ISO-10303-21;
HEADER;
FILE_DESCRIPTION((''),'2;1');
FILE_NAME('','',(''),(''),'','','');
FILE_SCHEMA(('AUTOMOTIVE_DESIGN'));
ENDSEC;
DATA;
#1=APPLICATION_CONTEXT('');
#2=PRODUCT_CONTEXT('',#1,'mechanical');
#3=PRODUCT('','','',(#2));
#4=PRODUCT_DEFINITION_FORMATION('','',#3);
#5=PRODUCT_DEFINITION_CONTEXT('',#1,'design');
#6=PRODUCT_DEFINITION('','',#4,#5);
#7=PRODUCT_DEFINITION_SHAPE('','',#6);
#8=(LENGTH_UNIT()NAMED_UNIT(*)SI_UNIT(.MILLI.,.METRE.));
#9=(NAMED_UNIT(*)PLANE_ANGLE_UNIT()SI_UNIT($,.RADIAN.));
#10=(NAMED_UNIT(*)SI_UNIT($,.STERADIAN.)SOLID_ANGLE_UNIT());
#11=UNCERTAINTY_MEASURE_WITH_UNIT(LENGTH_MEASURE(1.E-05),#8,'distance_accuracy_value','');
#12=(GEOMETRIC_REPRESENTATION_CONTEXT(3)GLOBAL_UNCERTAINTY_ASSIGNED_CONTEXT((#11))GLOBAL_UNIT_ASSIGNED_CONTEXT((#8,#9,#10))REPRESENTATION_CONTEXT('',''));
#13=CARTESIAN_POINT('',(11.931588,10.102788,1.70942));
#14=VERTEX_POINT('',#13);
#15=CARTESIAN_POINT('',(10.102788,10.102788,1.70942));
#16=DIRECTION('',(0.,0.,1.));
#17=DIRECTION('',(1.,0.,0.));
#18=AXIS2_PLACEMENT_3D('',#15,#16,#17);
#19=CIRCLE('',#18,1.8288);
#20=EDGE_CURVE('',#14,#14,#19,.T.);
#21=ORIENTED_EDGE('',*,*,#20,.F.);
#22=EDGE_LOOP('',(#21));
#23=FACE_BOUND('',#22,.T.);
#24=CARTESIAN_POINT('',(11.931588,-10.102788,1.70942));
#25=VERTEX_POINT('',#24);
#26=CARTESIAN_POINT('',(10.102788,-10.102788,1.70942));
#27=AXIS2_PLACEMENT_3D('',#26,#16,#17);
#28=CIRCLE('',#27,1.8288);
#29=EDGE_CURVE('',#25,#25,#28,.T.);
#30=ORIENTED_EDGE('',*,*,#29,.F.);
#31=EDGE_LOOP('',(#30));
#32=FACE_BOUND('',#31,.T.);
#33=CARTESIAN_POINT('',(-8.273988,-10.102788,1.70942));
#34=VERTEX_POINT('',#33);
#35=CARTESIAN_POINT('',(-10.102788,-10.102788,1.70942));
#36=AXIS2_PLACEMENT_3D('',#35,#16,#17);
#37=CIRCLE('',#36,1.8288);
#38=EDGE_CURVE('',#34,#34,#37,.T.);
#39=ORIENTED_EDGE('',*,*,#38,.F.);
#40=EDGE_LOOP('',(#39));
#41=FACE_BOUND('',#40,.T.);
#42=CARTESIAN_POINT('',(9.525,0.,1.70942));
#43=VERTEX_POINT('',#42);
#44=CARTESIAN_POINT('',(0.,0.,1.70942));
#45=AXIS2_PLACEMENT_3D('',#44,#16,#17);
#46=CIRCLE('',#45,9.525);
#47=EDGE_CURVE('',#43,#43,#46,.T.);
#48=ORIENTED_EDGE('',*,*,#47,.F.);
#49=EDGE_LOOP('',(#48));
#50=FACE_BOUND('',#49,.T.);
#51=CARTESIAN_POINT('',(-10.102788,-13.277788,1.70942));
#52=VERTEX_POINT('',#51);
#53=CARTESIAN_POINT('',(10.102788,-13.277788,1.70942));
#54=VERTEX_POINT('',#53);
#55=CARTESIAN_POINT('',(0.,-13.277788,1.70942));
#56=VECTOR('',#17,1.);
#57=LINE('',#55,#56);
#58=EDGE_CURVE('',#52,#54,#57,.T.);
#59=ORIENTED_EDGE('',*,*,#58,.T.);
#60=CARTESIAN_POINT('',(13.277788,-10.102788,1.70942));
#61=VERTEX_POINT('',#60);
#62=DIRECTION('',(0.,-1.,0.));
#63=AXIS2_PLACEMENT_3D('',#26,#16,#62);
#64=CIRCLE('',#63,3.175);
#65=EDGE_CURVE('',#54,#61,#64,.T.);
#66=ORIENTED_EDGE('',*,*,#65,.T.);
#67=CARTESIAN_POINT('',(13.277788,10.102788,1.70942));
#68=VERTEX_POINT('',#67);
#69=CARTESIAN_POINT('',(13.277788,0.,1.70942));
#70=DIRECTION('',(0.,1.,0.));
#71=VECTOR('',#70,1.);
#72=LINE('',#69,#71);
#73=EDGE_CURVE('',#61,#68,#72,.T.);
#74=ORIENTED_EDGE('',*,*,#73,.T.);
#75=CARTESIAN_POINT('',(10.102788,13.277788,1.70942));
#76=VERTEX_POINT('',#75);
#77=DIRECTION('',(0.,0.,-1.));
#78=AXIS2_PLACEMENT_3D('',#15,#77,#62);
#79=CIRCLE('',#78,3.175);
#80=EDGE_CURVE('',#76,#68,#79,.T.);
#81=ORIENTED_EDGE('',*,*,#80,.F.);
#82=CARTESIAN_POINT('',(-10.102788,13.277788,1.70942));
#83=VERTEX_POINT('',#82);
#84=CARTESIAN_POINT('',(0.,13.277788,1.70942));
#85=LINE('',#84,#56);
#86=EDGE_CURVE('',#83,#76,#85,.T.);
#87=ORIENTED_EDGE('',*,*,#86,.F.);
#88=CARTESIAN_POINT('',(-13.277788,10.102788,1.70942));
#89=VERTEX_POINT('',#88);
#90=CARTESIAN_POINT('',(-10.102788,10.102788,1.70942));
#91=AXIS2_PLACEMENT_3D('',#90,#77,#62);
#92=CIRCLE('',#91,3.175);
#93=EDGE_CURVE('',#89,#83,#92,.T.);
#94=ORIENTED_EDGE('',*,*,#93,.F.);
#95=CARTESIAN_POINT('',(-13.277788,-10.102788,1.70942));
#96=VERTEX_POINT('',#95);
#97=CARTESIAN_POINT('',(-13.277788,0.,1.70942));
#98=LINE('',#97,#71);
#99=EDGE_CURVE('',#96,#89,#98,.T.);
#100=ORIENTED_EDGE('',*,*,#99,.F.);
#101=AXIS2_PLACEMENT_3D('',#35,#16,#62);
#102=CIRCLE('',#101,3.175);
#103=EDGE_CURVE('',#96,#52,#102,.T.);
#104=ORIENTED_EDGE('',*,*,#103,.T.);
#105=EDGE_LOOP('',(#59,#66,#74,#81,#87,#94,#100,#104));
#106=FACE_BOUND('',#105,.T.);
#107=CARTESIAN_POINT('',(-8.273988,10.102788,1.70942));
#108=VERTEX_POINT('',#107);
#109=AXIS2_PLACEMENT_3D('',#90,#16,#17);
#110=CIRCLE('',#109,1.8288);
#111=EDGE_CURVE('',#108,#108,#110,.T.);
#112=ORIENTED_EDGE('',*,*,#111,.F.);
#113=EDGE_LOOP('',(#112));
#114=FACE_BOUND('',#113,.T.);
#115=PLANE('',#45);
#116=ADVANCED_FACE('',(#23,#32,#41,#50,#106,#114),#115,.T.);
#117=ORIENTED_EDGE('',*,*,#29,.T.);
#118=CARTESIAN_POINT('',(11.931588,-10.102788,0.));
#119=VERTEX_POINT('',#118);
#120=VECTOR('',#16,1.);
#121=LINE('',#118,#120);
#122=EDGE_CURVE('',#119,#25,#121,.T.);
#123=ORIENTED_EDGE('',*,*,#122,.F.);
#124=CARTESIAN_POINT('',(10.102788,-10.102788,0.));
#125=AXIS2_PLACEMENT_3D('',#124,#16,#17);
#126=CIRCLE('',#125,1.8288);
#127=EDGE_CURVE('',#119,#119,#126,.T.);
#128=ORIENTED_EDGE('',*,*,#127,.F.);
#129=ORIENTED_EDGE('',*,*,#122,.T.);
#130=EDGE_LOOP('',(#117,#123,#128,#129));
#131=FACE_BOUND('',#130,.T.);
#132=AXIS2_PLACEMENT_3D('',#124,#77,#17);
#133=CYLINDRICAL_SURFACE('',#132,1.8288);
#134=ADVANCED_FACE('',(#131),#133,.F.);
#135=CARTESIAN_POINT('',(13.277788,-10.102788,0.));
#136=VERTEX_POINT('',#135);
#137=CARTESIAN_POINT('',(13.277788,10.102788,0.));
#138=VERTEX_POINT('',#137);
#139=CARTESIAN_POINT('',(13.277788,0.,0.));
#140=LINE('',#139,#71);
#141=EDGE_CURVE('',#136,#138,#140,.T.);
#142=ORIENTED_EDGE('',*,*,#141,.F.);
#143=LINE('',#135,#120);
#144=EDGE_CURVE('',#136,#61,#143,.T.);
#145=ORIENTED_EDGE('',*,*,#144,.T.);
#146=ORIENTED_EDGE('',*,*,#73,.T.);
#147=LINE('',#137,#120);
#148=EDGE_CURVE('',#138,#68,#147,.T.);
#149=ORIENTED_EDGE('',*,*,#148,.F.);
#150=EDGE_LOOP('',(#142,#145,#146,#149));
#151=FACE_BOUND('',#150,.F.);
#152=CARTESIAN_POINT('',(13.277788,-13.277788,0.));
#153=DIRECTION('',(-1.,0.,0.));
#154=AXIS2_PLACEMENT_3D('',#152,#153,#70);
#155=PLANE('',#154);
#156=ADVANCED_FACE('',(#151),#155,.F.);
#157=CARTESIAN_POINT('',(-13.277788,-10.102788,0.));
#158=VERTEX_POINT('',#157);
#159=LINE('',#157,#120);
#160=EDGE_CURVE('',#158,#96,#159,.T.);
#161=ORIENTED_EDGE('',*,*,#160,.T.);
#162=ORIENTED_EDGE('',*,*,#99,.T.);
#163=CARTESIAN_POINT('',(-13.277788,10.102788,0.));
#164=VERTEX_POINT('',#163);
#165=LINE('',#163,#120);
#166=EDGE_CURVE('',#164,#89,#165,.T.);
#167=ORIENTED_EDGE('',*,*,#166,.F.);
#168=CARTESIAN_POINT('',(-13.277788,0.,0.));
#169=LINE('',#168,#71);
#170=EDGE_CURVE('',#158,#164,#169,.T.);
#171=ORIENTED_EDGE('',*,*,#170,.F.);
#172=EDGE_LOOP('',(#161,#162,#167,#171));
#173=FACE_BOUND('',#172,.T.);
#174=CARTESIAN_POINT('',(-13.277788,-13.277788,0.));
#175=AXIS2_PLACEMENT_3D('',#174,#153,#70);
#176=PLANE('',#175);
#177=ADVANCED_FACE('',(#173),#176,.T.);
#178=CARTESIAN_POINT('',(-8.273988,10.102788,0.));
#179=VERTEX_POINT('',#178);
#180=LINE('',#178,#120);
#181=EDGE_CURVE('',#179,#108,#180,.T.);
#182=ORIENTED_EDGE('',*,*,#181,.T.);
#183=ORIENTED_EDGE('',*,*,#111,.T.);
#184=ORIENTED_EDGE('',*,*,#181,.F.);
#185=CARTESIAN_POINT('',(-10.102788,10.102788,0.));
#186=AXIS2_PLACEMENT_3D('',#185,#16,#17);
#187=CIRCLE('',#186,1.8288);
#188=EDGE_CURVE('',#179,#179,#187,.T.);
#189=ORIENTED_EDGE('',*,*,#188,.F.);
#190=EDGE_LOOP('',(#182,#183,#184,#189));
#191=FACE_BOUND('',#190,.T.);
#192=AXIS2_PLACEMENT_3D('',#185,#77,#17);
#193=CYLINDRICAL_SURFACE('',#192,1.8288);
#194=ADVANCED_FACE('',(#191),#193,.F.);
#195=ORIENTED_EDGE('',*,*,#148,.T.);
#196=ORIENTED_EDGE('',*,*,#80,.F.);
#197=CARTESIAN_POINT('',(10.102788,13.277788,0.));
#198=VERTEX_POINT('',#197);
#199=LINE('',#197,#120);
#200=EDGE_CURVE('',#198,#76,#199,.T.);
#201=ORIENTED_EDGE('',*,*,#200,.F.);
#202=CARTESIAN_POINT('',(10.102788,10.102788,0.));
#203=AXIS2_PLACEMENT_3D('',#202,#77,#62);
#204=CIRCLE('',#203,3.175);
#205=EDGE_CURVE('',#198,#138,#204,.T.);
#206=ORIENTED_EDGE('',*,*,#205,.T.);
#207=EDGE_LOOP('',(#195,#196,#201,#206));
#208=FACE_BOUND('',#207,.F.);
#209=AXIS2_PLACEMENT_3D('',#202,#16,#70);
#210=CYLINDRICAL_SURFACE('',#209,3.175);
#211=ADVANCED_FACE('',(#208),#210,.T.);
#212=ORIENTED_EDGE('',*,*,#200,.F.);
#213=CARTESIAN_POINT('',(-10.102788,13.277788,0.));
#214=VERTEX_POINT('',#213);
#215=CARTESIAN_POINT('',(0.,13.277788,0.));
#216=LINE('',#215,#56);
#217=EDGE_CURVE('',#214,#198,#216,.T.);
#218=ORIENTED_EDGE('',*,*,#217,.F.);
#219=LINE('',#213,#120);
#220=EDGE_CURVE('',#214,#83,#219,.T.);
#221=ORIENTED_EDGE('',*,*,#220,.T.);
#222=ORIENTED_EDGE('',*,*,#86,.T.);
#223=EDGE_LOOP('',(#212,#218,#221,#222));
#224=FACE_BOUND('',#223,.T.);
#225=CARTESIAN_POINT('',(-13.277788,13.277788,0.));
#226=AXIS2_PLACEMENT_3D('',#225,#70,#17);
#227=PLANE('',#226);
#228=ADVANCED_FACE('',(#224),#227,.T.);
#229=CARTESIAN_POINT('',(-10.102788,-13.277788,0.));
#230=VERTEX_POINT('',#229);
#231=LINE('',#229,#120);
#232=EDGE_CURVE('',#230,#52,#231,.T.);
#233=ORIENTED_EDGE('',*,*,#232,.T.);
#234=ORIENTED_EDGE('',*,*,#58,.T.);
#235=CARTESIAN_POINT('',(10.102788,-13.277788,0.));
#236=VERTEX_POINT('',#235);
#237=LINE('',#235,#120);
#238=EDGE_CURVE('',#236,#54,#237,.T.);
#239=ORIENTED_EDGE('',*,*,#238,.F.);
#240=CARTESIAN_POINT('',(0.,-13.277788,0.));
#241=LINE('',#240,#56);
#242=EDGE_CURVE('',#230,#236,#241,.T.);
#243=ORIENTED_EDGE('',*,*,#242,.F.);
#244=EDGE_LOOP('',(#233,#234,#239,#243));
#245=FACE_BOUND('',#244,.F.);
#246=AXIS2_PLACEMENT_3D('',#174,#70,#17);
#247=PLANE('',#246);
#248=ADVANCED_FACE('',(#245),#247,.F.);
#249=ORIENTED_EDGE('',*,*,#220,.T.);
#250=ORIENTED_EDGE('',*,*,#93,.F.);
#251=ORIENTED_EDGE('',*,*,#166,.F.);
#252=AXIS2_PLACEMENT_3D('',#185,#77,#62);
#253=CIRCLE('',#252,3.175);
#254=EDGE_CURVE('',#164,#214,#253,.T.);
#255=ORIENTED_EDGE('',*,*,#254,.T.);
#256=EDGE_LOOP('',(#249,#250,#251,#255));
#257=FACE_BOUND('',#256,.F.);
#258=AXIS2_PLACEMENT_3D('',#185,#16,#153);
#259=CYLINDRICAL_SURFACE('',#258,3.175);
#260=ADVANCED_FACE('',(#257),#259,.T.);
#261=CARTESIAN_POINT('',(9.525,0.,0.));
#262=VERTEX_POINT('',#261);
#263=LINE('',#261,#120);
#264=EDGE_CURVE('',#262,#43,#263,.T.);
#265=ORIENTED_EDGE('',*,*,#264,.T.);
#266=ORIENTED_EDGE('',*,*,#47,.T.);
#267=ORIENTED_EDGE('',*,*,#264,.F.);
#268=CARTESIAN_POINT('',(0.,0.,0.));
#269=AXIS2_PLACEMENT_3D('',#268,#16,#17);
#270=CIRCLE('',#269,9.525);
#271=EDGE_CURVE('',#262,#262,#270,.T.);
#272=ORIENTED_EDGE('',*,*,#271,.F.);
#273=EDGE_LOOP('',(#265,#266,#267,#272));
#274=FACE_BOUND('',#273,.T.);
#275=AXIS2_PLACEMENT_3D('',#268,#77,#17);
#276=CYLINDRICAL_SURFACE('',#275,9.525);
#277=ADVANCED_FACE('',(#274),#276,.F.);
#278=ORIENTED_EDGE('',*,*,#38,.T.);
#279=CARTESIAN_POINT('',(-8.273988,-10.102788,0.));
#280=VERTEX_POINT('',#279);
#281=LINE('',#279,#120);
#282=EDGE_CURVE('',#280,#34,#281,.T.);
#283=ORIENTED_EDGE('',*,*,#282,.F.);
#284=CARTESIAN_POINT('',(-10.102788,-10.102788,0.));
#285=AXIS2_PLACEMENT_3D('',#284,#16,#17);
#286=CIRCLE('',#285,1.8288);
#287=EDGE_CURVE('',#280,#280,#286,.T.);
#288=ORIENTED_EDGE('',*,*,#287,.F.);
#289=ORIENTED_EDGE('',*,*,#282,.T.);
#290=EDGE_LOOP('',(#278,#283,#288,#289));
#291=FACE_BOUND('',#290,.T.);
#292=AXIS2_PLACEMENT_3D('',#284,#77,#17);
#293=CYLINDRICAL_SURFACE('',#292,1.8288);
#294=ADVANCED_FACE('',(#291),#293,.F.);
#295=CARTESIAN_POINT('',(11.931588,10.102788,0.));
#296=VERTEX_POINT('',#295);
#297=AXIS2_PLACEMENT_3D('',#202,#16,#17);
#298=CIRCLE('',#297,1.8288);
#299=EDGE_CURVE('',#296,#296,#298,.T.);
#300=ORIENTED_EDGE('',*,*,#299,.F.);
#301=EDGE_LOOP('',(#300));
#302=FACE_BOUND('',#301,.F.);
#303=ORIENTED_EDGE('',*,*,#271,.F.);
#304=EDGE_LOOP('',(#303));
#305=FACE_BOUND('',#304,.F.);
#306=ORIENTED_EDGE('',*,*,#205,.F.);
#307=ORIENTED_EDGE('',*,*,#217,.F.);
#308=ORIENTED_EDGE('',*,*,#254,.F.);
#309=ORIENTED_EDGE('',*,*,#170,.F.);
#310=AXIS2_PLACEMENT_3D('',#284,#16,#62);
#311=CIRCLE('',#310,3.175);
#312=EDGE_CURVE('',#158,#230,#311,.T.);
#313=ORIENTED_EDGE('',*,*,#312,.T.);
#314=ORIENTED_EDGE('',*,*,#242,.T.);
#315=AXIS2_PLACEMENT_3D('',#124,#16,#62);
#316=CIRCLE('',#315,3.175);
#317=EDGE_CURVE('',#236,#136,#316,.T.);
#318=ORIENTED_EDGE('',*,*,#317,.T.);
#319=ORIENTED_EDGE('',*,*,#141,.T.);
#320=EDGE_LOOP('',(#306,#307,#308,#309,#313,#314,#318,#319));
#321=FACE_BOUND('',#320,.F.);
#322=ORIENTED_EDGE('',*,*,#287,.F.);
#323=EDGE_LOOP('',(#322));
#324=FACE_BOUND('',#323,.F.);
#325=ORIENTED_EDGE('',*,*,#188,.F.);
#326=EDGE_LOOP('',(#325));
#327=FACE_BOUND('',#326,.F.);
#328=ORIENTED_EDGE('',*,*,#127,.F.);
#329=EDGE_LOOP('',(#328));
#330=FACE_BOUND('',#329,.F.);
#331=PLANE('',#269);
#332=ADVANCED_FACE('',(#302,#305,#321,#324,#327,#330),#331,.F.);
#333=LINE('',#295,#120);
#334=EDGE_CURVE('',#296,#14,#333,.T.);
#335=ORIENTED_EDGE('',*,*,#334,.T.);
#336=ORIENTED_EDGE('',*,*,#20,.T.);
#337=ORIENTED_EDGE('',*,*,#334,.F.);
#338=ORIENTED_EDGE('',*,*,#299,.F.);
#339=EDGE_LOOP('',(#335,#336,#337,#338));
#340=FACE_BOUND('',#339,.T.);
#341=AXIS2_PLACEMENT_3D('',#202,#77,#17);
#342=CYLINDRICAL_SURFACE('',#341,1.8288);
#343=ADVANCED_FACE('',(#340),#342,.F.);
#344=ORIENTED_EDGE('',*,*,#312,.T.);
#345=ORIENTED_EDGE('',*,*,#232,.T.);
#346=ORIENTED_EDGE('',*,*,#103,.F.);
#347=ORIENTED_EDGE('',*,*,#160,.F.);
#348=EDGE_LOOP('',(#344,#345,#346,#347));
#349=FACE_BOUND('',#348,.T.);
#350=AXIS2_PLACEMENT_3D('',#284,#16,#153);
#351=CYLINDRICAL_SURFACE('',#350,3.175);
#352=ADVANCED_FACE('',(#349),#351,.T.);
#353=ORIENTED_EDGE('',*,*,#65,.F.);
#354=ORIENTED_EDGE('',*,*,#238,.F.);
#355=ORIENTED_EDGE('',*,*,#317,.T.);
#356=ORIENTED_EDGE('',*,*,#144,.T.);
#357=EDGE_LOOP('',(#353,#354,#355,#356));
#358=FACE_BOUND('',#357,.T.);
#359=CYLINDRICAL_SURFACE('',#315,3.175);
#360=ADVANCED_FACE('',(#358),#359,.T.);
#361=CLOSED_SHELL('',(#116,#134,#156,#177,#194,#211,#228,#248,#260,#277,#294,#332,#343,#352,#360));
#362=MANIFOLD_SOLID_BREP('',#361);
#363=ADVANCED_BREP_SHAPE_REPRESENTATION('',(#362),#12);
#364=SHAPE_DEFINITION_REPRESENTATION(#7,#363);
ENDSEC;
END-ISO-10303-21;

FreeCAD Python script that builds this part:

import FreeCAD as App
import Part
import Sketcher
from FreeCAD import Vector
Q = App.Units.Quantity


def edges_at(feature, points):
    """Names of the edges that pass closest to the given points."""
    edges = feature.Shape.Edges
    near = lambda p: min(range(len(edges)), key=lambda i: edges[i].distToShape(Part.Vertex(*p))[0])
    return sorted({f"Edge{near(p) + 1}" for p in points})


def add_polygon(sketch, points):
    """Adds a closed chain of lines whose ends are joined by coincident constraints."""
    first, n = sketch.GeometryCount, len(points)
    for a, b in zip(points, points[1:] + points[:1]):
        sketch.addGeometry(Part.LineSegment(App.Vector(*a, 0), App.Vector(*b, 0)), False)
    for i in range(n):
        sketch.addConstraint(Sketcher.Constraint("Coincident", first + i, 2, first + (i + 1) % n, 1))

doc = App.newDocument("Part")
body = doc.addObject("PartDesign::Body", "Body")

sketch1 = body.newObject("Sketcher::SketchObject", "Sketch")
sketch1.AttachmentSupport = (doc.getObject("XY_Plane"), [""])
sketch1.MapMode = "FlatFace"
add_polygon(sketch1, [(-13.3, 13.3), (-13.3, -13.3), (13.3, -13.3), (13.3, 13.3)])
sketch1.addGeometry(Part.Circle(Vector(-10.1, -10.1, 0), Vector(0, 0, 1), 1.8), False)
sketch1.addGeometry(Part.Circle(Vector(10.1, -10.1, 0), Vector(0, 0, 1), 1.8), False)
sketch1.addGeometry(Part.Circle(Vector(-10.1, 10.1, 0), Vector(0, 0, 1), 1.8), False)
sketch1.addGeometry(Part.Circle(Vector(0, 0, 0), Vector(0, 0, 1), 9.5), False)
sketch1.addGeometry(Part.Circle(Vector(10.1, 10.1, 0), Vector(0, 0, 1), 1.8), False)
sketch1.addConstraint([
    Sketcher.Constraint("Vertical", 0),
    Sketcher.Constraint("Horizontal", 1),
    Sketcher.Constraint("Vertical", 2),
    Sketcher.Constraint("Horizontal", 3),
    Sketcher.Constraint("Coincident", 7, 3, -1, 1),
    Sketcher.Constraint("Equal", 4, 5),
    Sketcher.Constraint("Equal", 5, 6),
    Sketcher.Constraint("Equal", 6, 8),
    Sketcher.Constraint("Symmetric", 5, 3, 6, 3, -1, 1),
    Sketcher.Constraint("Symmetric", 4, 3, 8, 3, -1, 1),
    Sketcher.Constraint("Symmetric", 0, 2, 2, 2, -1, 1),
    Sketcher.Constraint("Symmetric", 4, 3, 5, 3, -2),
    Sketcher.Constraint("Equal", 3, 0),
    Sketcher.Constraint("Diameter", 7, Q("0.75 in")),
    Sketcher.Constraint("Diameter", 4, Q("0.144 in")),
    Sketcher.Constraint("DistanceX", 0, 2, 4, 3, Q("0.125 in")),
    Sketcher.Constraint("DistanceY", 0, 2, 4, 3, Q("0.125 in")),
    Sketcher.Constraint("DistanceX", 1, 1, 1, 2, 26.555576),
])
pad1 = body.newObject("PartDesign::Pad", "Pad")
pad1.Profile = sketch1
pad1.Length = Q("0.0673 in")
doc.recompute()

fillet = body.newObject("PartDesign::Fillet", "Fillet")
fillet.Base = (pad1, edges_at(pad1, [
    (-13.278, 13.278, 0.855),
    (13.278, 13.278, 0.855),
    (13.278, -13.278, 0.855),
    (-13.278, -13.278, 0.855),
]))
fillet.Radius = Q("0.125 in")

doc.recompute()
